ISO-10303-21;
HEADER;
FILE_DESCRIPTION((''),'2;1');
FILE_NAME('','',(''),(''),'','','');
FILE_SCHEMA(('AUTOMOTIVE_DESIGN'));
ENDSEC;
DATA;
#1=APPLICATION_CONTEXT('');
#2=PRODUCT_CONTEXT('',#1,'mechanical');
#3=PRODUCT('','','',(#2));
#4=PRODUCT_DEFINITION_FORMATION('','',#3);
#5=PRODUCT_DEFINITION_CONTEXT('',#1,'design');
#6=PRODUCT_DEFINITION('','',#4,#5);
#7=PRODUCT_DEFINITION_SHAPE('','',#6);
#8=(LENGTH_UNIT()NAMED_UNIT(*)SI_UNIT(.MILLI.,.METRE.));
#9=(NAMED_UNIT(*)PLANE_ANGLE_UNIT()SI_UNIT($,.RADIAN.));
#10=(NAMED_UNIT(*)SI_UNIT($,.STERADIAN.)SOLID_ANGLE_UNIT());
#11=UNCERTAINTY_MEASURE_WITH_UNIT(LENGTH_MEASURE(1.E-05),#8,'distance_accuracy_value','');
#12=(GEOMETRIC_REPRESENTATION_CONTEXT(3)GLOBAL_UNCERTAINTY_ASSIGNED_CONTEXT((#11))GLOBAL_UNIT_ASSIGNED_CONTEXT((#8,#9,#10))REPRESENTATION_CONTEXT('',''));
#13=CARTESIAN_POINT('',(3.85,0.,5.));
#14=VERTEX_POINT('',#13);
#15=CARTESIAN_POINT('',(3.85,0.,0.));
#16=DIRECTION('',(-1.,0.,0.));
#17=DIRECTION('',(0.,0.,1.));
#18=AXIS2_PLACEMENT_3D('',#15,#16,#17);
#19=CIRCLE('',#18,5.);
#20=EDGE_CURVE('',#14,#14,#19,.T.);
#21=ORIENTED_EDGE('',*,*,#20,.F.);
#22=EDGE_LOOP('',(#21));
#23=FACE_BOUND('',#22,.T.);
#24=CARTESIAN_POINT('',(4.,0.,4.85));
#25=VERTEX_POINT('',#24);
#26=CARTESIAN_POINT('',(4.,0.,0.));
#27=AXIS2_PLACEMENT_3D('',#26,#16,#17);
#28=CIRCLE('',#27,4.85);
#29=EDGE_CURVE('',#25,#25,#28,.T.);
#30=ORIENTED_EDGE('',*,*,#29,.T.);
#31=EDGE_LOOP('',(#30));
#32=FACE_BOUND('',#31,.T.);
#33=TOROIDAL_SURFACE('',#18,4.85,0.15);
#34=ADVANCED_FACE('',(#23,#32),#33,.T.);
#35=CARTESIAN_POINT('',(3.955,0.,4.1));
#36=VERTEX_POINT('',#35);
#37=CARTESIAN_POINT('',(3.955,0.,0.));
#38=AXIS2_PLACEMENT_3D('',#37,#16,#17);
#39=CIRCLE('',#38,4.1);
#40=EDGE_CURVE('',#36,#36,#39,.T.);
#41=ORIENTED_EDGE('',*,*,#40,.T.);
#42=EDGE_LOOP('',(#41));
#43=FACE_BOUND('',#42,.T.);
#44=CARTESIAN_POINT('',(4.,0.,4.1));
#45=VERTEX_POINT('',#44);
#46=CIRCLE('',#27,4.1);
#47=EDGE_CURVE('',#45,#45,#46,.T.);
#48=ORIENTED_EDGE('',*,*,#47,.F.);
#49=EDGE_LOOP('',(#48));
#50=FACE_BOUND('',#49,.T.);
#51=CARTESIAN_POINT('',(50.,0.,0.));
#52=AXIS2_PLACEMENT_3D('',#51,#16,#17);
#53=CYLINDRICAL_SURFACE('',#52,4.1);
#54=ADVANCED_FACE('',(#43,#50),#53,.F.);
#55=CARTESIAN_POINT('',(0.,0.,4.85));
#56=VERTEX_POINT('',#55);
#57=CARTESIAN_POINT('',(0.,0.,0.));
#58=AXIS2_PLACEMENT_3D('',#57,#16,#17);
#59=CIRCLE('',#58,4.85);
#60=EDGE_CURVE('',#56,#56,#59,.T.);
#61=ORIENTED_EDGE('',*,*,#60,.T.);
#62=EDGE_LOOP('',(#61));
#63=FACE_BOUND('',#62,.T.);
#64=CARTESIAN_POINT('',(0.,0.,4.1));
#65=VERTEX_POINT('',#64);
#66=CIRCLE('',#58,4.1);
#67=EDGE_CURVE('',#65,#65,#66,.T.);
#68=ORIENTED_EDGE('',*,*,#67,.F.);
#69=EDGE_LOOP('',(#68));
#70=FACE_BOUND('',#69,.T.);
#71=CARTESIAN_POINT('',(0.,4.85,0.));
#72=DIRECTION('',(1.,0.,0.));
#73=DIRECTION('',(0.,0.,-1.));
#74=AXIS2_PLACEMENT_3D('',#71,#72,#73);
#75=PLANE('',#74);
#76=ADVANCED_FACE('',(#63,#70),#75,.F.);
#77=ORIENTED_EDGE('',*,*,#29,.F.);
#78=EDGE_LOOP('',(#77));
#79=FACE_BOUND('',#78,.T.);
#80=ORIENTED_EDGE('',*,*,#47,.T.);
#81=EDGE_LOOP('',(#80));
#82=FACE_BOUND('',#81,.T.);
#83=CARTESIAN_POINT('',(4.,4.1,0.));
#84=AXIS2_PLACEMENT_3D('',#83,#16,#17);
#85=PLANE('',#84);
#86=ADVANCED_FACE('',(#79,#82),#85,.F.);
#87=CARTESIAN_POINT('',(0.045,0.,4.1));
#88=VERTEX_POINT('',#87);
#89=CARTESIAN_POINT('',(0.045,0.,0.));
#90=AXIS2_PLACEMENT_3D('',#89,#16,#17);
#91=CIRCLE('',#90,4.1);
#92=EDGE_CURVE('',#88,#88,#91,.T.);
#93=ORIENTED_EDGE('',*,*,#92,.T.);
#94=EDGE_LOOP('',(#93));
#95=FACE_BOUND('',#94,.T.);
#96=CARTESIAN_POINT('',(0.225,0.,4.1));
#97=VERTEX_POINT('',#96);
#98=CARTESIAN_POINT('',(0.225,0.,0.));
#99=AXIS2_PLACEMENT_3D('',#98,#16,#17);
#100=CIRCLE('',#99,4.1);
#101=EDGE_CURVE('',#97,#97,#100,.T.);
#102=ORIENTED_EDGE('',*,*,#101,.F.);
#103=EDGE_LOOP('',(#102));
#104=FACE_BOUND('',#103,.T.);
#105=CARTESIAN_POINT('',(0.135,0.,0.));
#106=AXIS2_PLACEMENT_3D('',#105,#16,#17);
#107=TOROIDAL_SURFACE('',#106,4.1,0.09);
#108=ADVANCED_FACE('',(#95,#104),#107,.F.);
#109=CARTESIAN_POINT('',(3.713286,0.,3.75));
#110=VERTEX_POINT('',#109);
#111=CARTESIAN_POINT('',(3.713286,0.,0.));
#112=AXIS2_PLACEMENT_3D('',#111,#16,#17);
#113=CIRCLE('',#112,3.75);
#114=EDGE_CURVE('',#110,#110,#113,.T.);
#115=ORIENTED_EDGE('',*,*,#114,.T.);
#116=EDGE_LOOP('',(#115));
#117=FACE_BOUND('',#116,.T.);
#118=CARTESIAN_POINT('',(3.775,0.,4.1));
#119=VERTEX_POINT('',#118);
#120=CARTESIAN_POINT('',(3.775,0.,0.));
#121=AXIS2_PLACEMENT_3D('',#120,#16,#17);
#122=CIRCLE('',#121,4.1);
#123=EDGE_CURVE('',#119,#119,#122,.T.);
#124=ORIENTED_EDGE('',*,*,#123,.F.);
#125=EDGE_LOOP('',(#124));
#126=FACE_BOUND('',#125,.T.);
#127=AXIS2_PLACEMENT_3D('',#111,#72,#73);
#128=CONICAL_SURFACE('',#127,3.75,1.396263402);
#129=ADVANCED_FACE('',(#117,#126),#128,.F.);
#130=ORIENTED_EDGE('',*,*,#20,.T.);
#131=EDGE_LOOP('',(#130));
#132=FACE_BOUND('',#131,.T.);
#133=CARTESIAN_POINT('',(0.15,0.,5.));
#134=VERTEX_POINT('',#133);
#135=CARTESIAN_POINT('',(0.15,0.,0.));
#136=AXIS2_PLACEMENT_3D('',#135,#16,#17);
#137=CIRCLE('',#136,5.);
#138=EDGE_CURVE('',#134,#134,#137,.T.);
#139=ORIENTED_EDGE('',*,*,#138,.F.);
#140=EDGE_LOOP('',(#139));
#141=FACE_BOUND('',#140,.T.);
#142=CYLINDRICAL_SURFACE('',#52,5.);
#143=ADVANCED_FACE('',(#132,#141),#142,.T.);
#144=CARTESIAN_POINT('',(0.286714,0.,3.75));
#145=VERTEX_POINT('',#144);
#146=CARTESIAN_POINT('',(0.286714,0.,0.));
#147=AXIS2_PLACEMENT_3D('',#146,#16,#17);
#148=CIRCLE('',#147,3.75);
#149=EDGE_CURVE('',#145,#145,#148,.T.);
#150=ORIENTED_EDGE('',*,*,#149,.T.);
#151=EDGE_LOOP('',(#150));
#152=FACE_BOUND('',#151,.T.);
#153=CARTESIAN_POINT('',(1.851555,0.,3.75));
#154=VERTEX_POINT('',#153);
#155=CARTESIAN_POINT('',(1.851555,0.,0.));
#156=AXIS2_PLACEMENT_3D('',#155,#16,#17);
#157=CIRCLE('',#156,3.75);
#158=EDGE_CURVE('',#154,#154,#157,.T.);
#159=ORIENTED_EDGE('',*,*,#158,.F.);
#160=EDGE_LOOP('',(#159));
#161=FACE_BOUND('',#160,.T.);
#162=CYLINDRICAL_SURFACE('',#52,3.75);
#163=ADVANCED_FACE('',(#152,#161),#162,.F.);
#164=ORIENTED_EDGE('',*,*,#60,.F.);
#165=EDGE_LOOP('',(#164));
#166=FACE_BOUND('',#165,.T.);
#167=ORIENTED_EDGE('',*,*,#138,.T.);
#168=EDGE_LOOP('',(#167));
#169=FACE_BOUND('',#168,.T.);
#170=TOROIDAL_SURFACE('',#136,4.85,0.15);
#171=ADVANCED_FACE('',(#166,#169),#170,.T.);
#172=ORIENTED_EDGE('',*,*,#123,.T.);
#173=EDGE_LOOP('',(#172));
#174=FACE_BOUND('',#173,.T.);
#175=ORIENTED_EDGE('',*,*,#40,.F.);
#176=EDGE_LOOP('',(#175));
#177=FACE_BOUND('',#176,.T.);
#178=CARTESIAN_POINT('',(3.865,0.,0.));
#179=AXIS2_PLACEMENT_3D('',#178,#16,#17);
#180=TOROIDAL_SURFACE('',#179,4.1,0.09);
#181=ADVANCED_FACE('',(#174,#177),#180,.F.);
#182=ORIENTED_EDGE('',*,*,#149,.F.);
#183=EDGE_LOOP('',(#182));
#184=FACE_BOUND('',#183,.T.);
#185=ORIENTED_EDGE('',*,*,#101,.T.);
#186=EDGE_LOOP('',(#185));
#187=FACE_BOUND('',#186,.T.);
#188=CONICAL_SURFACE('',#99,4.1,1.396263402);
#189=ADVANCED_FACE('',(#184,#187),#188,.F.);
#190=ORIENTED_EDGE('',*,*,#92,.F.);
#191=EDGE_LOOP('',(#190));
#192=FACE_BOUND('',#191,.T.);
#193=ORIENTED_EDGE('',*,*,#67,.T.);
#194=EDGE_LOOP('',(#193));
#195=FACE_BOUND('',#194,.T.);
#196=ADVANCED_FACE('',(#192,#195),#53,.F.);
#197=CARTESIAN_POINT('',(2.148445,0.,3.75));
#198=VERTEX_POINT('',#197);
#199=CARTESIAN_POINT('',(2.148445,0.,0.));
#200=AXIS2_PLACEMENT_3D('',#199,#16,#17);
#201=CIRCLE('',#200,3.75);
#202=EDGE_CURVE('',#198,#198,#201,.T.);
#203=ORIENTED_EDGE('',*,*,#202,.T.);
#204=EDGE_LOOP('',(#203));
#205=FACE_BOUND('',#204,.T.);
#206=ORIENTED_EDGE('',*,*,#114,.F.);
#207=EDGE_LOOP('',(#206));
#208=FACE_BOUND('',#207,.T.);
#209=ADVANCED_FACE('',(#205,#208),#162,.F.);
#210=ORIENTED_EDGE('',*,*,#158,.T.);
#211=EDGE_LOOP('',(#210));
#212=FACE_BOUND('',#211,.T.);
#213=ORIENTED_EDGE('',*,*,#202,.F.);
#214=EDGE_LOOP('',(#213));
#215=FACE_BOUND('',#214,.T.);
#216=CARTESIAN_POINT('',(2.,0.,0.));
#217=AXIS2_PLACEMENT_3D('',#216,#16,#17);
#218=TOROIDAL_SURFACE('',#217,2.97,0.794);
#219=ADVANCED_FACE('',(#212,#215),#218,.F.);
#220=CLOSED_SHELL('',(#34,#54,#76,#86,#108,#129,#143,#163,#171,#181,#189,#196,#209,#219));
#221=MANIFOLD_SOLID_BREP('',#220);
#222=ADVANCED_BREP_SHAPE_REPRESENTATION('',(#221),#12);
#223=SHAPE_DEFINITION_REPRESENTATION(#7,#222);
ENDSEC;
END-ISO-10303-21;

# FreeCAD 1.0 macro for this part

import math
import FreeCAD as App
import Part
import Sketcher

V = App.Vector
Q = App.Units.Quantity

doc = App.newDocument("Part")
body = doc.addObject("PartDesign::Body", "Body")

# Sketch on XY plane
sketch1 = doc.addObject("Sketcher::SketchObject", "Sketch")
body.addObject(sketch1)
sketch1.AttachmentSupport = (doc.XY_Plane, [""])
sketch1.MapMode = "FlatFace"
sketch1.addGeometry([
    Part.LineSegment(V(0, 4.1, 0), V(0.045, 4.1, 0)),  # 0
    Part.ArcOfCircle(Part.Circle(V(0.135, 4.1, 0), V(0, 0, 1), 0.09), math.radians(0), math.radians(180)),  # 1
    Part.LineSegment(V(0.225, 4.1, 0), V(0.286714, 3.75, 0)),  # 2
    Part.LineSegment(V(0.286714, 3.75, 0), V(1.851555, 3.75, 0)),  # 3
    Part.ArcOfCircle(Part.Circle(V(2, 2.97, 0), V(0, 0, 1), 0.794), math.radians(79.224645), math.radians(100.775355)),  # 4
    Part.LineSegment(V(2.148445, 3.75, 0), V(3.713286, 3.75, 0)),  # 5
    Part.LineSegment(V(3.713286, 3.75, 0), V(3.775, 4.1, 0)),  # 6
    Part.ArcOfCircle(Part.Circle(V(3.865, 4.1, 0), V(0, 0, 1), 0.09), math.radians(-0.000003), math.radians(180.000003)),  # 7
    Part.LineSegment(V(3.955, 4.1, 0), V(4, 4.1, 0)),  # 8
    Part.LineSegment(V(4, 4.1, 0), V(4, 4.85, 0)),  # 9
    Part.ArcOfCircle(Part.Circle(V(3.85, 4.85, 0), V(0, 0, 1), 0.15), math.radians(0), math.radians(90)),  # 10
    Part.LineSegment(V(3.85, 5, 0), V(0.15, 5, 0)),  # 11
    Part.ArcOfCircle(Part.Circle(V(0.15, 4.85, 0), V(0, 0, 1), 0.15), math.radians(90), math.radians(180)),  # 12
    Part.LineSegment(V(0, 4.85, 0), V(0, 4.1, 0)),  # 13
], False)
sketch1.addConstraint([
    Sketcher.Constraint("Coincident", 0, 2, 1, 2),
    Sketcher.Constraint("Coincident", 1, 1, 2, 1),
    Sketcher.Constraint("Coincident", 2, 2, 3, 1),
    Sketcher.Constraint("Coincident", 3, 2, 4, 2),
    Sketcher.Constraint("Coincident", 4, 1, 5, 1),
    Sketcher.Constraint("Coincident", 5, 2, 6, 1),
    Sketcher.Constraint("Coincident", 6, 2, 7, 2),
    Sketcher.Constraint("Coincident", 7, 1, 8, 1),
    Sketcher.Constraint("Coincident", 8, 2, 9, 1),
    Sketcher.Constraint("Tangent", 9, 2, 10, 1),
    Sketcher.Constraint("Tangent", 10, 2, 11, 1),
    Sketcher.Constraint("Tangent", 11, 2, 12, 1),
    Sketcher.Constraint("Tangent", 12, 2, 13, 1),
    Sketcher.Constraint("Coincident", 13, 2, 0, 1),
    Sketcher.Constraint("Horizontal", 0),
    Sketcher.Constraint("Horizontal", 3),
    Sketcher.Constraint("Horizontal", 5),
    Sketcher.Constraint("Horizontal", 8),
    Sketcher.Constraint("Vertical", 9),
    Sketcher.Constraint("Horizontal", 11),
    Sketcher.Constraint("Vertical", 13),
    Sketcher.Constraint("Equal", 1, 7),
    Sketcher.Constraint("Equal", 10, 12),
    Sketcher.Constraint("PointOnObject", 12, 2, -2),
    Sketcher.Constraint("Horizontal", 1, 3, 7, 3),
    Sketcher.Constraint("Horizontal", 7, 3, 0, 2),
    Sketcher.Constraint("Horizontal", 0, 2, 1, 1),
    Sketcher.Constraint("Horizontal", 3, 2, 4, 1),
    Sketcher.Constraint("Horizontal", 1, 1, 6, 2),
    Sketcher.Constraint("Horizontal", 6, 2, 7, 1),
    Sketcher.Constraint("Equal", 3, 5),
    Sketcher.Constraint("Equal", 0, 8),
    Sketcher.Constraint("Equal", 2, 6),
    Sketcher.Constraint("Angle", 2, Q("-80 deg")),
    Sketcher.Constraint("Radius", 1, 0.09),
    Sketcher.Constraint("Radius", 10, 0.15),
    Sketcher.Constraint("DistanceX", 11, 2, 11, 1, 3.7),
    Sketcher.Constraint("DistanceY", -1, 1, 10, 2, 5.0),
    Sketcher.Constraint("Radius", 4, 0.794),
    Sketcher.Constraint("DistanceY", 9, 1, 9, 2, 0.75),
    Sketcher.Constraint("DistanceY", 2, 2, 12, 3, 1.1),
    Sketcher.Constraint("DistanceX", 0, 1, 0, 2, 0.045),
    Sketcher.Constraint("DistanceY", -1, 1, 4, 3, 2.97),
])
revolution = doc.addObject("PartDesign::Revolution", "Revolution")
body.addObject(revolution)
revolution.Profile = sketch1
revolution.ReferenceAxis = (sketch1, ["H_Axis"])
revolution.Angle = 360

doc.recompute()
